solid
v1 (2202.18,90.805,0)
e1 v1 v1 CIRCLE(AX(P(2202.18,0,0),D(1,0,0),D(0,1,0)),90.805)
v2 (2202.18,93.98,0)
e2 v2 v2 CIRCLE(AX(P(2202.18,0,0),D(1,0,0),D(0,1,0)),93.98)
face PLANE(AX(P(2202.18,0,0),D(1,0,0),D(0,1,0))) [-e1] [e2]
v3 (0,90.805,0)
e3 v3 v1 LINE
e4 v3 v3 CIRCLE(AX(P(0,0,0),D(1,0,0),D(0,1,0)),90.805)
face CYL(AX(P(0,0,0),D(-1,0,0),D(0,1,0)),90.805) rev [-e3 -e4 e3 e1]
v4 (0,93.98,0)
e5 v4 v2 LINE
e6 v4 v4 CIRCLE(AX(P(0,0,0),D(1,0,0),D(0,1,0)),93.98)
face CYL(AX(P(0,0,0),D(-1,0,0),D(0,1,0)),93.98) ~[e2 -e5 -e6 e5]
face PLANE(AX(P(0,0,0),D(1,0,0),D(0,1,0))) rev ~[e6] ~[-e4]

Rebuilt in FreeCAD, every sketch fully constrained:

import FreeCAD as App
import Part
import Sketcher

V = App.Vector
Q = App.Units.Quantity

doc = App.newDocument("Part")
body = doc.addObject("PartDesign::Body", "Body")

sketch1 = doc.addObject("Sketcher::SketchObject", "Sketch")
body.addObject(sketch1)
sketch1.AttachmentSupport = (doc.YZ_Plane, [""])
sketch1.MapMode = "FlatFace"
sketch1.addGeometry([
    Part.Circle(V(0, 0, 0), V(0, 0, 1), 94),
    Part.Circle(V(0, 0, 0), V(0, 0, 1), 91),
], False)
sketch1.addConstraint([
    Sketcher.Constraint("Coincident", 0, 3, -1, 1),
    Sketcher.Constraint("Coincident", 1, 3, -1, 1),
    Sketcher.Constraint("Diameter", 0, Q("7.4 in")),
    Sketcher.Constraint("Diameter", 1, Q("7.15 in")),
])
pad1 = doc.addObject("PartDesign::Pad", "Pad")
body.addObject(pad1)
pad1.Profile = sketch1
pad1.Length = Q("86.7 in")

doc.recompute()
